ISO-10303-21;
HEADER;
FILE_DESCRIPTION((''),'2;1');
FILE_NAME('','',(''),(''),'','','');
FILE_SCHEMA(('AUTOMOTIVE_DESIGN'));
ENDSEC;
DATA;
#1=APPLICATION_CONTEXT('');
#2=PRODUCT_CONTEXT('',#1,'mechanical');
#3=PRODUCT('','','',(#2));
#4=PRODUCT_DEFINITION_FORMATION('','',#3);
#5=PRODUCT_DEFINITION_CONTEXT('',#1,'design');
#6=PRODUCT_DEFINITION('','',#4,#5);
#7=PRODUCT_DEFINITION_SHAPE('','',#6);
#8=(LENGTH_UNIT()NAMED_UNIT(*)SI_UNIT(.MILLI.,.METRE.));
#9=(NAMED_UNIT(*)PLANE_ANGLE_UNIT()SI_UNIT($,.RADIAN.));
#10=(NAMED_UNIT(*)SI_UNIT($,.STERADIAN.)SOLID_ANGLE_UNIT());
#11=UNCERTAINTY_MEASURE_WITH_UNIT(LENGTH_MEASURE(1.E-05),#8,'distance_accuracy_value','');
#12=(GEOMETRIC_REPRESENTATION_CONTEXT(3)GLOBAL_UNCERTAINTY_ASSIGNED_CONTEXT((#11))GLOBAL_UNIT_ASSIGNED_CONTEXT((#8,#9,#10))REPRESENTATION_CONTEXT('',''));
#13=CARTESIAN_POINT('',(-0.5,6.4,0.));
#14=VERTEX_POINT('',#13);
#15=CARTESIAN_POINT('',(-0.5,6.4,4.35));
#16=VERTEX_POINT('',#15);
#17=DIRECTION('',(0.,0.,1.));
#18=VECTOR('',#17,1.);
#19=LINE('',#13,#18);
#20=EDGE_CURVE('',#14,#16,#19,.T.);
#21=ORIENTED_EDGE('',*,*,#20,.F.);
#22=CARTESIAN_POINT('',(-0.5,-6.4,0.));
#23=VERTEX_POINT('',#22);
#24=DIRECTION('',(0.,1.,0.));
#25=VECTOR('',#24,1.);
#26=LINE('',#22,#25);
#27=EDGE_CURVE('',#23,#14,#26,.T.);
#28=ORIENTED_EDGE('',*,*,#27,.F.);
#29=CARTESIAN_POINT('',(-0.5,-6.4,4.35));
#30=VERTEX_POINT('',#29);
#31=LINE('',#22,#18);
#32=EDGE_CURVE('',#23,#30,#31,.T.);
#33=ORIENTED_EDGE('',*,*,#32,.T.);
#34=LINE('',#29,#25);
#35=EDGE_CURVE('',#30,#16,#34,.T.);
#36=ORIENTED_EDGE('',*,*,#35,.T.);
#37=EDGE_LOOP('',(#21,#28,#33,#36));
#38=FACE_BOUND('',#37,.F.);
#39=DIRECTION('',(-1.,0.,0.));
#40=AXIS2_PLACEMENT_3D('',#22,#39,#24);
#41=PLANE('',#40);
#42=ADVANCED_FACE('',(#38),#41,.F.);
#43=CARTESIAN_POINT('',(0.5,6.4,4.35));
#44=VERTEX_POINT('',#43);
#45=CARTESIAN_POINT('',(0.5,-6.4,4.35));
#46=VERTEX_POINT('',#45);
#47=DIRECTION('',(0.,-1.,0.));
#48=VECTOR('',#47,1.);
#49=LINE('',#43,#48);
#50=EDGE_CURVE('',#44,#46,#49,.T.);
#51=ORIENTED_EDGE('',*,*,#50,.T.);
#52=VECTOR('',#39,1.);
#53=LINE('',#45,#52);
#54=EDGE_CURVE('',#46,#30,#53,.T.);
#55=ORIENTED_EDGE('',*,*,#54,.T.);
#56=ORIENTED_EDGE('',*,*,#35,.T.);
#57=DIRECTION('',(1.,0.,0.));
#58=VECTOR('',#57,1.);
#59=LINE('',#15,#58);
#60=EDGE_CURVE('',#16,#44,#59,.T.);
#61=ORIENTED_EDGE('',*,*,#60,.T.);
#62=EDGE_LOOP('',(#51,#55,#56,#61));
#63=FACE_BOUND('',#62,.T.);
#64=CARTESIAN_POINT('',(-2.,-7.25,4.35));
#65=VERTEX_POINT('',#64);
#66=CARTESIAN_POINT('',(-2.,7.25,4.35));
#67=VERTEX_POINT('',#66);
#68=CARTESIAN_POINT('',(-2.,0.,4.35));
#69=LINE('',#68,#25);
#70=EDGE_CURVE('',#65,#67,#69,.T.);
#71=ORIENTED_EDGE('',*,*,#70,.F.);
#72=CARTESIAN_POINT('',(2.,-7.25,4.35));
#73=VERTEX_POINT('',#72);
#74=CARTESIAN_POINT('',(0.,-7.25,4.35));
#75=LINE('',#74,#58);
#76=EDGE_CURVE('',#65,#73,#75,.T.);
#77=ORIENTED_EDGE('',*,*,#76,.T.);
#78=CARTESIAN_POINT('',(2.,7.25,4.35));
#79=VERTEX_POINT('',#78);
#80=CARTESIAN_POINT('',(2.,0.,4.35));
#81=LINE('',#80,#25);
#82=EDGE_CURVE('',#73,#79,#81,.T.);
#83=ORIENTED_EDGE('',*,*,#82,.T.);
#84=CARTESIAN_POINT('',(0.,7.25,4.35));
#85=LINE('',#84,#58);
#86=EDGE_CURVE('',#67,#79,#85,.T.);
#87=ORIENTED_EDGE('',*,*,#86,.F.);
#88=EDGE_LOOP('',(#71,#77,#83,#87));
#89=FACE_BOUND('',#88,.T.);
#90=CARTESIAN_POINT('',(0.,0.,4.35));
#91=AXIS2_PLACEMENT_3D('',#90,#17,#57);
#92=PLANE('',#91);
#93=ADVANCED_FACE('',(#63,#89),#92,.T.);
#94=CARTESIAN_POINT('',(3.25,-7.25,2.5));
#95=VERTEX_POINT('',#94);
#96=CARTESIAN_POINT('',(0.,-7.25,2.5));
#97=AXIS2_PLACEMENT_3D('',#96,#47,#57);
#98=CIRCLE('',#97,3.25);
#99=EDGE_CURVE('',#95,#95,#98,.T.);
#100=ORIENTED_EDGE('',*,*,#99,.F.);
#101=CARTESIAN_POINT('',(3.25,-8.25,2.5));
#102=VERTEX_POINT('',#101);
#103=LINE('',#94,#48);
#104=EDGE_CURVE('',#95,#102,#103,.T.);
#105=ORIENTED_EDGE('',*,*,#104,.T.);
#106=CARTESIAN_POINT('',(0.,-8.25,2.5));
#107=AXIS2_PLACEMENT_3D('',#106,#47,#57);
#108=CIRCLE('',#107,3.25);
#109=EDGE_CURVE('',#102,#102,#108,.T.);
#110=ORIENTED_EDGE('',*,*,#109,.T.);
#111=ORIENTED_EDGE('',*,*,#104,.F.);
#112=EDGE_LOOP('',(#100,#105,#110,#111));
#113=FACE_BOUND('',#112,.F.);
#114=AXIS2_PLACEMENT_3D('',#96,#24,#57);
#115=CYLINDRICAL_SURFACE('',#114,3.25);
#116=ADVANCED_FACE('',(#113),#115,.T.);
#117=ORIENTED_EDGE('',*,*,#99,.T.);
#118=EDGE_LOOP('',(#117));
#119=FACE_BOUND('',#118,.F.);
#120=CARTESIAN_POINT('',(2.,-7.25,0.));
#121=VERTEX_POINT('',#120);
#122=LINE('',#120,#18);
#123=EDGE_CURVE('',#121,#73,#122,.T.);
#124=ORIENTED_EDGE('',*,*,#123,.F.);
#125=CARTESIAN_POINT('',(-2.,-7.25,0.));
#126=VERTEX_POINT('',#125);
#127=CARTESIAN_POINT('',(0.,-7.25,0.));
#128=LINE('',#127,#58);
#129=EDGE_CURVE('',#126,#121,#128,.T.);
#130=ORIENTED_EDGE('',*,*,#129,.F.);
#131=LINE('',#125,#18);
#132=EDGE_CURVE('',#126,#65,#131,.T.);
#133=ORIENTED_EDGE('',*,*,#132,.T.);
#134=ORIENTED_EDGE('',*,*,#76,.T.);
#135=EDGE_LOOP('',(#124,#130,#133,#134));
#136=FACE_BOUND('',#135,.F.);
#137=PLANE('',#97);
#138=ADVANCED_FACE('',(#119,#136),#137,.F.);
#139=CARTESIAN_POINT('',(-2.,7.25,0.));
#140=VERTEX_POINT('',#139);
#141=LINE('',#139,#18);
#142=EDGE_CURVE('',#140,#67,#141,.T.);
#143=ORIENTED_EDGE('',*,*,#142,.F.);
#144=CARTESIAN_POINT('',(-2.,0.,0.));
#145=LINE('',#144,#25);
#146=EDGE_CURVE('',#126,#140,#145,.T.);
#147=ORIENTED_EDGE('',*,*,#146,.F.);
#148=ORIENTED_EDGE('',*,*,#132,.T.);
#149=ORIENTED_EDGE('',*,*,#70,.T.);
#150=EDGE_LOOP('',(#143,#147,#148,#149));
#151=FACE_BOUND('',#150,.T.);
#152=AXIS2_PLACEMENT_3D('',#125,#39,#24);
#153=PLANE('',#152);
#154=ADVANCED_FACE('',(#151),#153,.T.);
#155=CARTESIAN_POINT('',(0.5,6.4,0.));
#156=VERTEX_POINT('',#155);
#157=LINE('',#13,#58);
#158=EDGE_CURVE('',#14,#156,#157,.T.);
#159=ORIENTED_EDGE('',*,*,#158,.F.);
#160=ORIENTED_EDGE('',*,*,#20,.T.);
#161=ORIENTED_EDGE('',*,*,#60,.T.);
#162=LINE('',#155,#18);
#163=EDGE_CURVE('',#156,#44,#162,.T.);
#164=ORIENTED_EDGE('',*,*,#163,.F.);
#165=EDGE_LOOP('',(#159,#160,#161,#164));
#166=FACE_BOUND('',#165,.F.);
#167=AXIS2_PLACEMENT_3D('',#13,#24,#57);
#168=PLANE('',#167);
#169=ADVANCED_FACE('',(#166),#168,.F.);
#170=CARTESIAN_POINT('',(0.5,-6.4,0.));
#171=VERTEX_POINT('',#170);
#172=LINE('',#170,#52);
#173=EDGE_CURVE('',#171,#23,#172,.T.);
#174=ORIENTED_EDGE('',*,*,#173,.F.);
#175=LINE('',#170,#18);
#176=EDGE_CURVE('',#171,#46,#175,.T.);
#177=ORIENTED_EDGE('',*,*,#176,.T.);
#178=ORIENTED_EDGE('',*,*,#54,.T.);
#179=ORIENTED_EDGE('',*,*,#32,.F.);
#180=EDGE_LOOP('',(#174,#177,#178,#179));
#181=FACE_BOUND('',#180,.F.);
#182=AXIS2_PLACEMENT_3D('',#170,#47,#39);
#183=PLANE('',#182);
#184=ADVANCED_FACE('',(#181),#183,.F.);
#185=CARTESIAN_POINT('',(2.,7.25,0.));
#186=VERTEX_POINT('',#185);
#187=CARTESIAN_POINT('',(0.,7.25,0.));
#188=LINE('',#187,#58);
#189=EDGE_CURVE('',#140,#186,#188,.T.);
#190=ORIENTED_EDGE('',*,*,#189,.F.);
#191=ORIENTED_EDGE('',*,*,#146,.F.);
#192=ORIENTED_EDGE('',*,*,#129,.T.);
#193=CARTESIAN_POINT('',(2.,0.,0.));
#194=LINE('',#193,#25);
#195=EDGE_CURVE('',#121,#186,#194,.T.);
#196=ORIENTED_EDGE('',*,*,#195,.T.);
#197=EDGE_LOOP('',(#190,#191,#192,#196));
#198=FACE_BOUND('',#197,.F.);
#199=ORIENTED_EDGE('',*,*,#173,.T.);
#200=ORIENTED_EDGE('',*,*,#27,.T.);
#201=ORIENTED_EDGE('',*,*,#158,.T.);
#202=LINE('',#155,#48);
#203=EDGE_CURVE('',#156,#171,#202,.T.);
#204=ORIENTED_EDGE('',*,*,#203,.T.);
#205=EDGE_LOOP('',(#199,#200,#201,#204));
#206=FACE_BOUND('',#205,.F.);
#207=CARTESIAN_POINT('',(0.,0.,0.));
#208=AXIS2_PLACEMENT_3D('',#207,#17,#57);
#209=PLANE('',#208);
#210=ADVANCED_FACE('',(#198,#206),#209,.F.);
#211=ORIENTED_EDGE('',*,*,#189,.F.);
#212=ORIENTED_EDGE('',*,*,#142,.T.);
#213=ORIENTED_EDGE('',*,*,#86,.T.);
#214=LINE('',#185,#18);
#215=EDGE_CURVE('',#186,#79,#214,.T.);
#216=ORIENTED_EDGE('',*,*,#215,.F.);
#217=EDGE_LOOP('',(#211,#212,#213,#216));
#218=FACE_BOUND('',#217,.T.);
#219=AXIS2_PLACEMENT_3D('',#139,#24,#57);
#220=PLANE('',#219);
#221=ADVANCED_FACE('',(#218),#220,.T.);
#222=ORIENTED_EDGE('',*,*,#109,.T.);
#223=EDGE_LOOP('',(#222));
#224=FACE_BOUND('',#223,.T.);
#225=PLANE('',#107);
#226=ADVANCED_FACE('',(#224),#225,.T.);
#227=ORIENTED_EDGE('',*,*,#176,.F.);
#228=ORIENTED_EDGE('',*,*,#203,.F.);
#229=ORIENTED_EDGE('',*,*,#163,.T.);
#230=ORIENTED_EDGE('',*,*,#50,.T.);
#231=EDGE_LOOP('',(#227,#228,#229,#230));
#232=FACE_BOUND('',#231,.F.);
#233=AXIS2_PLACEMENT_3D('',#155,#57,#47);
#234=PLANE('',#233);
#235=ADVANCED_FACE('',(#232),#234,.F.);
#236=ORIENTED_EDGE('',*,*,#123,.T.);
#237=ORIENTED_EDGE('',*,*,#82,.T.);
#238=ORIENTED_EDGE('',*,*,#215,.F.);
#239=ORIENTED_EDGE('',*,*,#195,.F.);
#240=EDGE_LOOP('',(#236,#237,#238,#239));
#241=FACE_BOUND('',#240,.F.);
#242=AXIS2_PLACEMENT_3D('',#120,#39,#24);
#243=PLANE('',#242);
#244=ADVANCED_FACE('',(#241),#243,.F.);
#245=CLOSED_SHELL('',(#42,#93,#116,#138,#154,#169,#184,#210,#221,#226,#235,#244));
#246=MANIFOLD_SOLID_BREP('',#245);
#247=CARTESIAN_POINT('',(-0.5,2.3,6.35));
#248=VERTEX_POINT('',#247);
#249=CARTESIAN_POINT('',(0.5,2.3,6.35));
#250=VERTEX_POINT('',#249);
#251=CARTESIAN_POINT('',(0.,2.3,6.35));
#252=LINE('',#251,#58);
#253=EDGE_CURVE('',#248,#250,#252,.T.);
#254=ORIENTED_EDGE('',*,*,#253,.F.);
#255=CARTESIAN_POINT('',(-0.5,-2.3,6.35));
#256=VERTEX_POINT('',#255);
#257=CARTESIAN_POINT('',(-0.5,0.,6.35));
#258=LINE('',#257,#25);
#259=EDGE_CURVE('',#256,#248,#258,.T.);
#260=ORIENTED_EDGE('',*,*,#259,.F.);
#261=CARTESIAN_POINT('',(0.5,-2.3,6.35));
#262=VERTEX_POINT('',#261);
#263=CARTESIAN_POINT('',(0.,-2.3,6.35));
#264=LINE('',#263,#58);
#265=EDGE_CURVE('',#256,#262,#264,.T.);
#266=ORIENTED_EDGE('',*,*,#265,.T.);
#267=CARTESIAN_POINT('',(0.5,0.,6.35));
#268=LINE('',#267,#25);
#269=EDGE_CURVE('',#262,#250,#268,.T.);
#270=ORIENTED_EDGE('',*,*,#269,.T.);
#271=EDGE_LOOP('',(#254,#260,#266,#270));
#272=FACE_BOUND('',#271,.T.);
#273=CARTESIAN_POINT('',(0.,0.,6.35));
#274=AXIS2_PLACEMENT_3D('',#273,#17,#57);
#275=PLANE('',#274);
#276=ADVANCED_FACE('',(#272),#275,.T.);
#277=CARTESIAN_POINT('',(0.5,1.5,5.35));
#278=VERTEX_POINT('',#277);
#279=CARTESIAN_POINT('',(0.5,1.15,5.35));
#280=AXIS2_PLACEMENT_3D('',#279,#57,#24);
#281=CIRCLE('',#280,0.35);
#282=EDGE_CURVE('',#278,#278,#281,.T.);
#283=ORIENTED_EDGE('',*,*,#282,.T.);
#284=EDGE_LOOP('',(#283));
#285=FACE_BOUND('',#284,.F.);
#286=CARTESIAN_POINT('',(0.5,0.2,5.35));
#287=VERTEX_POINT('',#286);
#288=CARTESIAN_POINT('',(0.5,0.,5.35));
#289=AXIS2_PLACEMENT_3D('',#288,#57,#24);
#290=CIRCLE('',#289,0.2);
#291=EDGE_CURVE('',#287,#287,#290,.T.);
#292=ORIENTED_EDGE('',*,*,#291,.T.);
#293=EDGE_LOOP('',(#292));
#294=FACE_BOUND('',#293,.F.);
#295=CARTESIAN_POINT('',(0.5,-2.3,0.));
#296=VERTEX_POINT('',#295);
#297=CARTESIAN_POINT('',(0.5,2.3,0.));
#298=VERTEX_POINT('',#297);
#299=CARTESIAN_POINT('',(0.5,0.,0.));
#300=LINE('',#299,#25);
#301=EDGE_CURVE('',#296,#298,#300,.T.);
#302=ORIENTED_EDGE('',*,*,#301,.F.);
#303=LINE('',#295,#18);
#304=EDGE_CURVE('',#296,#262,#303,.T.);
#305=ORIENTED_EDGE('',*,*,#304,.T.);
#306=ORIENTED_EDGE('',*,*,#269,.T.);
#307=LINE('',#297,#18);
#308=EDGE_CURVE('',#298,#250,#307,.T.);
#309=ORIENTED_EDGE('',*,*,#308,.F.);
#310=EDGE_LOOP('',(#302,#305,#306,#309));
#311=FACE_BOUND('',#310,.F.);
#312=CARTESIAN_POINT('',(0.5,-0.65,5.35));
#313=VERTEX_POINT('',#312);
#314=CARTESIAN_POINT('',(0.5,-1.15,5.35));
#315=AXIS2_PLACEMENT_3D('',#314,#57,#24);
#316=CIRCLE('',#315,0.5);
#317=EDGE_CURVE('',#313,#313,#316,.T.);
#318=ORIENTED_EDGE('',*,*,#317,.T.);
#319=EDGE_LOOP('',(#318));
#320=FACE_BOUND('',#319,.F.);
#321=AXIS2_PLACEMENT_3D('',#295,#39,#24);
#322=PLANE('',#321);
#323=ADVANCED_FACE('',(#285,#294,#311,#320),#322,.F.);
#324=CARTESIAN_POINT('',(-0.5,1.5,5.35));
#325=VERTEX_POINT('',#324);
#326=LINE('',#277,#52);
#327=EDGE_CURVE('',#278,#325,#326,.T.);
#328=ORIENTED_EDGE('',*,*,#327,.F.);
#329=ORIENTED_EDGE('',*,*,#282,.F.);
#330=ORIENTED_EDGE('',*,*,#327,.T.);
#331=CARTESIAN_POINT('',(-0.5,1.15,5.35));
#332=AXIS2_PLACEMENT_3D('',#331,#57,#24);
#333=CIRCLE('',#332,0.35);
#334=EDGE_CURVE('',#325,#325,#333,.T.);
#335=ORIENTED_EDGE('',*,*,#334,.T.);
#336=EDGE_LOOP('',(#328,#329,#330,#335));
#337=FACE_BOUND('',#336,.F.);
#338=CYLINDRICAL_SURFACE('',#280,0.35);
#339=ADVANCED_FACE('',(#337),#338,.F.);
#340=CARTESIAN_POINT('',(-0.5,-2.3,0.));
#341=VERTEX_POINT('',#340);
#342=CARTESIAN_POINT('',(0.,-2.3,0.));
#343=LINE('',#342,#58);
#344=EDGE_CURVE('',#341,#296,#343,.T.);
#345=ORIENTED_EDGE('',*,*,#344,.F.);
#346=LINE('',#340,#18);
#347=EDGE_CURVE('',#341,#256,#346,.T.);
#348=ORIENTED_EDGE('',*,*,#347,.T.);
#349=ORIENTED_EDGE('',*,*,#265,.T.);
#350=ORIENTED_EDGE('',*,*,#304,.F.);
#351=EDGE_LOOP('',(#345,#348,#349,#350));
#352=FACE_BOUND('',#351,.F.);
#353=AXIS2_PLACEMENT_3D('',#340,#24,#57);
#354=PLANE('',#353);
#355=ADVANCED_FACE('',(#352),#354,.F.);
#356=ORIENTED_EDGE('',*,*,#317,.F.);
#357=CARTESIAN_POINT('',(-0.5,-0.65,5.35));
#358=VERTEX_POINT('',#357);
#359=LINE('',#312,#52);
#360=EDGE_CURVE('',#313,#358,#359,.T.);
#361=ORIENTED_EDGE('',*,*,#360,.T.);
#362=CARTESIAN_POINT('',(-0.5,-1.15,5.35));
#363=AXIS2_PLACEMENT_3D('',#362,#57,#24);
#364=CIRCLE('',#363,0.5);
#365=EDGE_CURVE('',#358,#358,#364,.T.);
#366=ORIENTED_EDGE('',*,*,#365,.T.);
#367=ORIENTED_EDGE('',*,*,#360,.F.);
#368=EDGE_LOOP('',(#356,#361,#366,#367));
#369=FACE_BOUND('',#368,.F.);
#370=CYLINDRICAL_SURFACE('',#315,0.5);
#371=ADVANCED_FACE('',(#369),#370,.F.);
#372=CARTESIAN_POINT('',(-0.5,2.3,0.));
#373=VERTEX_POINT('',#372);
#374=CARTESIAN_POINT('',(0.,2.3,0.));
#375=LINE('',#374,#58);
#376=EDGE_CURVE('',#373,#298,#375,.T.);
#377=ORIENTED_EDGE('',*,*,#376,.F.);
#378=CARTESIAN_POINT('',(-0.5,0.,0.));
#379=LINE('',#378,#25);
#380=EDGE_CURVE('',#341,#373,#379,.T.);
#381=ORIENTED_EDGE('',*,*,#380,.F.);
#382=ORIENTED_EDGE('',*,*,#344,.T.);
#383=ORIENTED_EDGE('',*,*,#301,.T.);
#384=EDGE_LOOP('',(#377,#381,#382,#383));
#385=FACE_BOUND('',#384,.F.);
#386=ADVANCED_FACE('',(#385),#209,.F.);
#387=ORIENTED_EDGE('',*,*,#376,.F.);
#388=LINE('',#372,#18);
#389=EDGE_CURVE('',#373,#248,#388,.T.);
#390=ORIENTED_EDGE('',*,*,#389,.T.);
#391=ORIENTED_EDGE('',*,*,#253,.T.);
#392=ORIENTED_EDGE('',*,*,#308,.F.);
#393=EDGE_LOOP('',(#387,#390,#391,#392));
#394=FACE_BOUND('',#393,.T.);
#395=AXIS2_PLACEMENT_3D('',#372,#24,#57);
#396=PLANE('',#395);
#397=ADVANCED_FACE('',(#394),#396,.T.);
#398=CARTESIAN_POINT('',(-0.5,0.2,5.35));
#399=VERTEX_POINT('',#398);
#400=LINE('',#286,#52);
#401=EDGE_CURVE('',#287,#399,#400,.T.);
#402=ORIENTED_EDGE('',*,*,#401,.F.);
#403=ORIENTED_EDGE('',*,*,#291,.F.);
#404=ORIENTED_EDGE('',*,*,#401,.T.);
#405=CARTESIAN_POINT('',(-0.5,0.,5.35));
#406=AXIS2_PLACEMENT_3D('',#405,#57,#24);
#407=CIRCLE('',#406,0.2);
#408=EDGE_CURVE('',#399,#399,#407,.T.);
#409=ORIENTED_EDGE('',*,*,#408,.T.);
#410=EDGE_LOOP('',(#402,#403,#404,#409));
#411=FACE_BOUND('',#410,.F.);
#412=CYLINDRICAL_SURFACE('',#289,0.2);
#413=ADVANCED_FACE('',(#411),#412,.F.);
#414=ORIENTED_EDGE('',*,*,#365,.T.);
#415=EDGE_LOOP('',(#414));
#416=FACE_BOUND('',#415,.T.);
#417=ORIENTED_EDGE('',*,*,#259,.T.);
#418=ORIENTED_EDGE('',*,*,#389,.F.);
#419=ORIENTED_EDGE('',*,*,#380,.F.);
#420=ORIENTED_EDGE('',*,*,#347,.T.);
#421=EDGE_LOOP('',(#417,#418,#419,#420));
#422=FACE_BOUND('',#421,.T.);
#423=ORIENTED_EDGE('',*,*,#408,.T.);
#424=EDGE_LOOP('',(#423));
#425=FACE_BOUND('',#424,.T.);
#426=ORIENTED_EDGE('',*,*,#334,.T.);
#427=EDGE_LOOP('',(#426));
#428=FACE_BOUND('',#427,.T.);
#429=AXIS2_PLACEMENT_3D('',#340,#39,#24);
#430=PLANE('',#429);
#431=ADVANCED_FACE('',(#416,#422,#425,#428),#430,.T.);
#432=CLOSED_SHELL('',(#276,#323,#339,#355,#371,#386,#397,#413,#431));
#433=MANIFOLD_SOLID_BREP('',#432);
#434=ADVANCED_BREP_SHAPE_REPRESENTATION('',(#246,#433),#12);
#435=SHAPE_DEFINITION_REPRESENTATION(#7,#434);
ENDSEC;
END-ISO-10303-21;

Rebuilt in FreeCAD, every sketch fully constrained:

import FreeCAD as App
import Part
import Sketcher

V = App.Vector


def add_polygon(sketch, points):
    """Adds a closed chain of lines whose ends are joined by coincident constraints."""
    first, n = sketch.GeometryCount, len(points)
    for a, b in zip(points, points[1:] + points[:1]):
        sketch.addGeometry(Part.LineSegment(App.Vector(*a, 0), App.Vector(*b, 0)), False)
    for i in range(n):
        sketch.addConstraint(Sketcher.Constraint("Coincident", first + i, 2, first + (i + 1) % n, 1))

doc = App.newDocument("Part")
body = doc.addObject("PartDesign::Body", "Body")

# Sketch on XY plane
sketch1 = body.newObject("Sketcher::SketchObject", "Sketch")
sketch1.AttachmentSupport = (doc.getObject("XY_Plane"), [""])
sketch1.MapMode = "FlatFace"
add_polygon(sketch1, [(-2, 7.25), (-2, -7.25), (2, -7.25), (2, 7.25)])  # lines 0-3
add_polygon(sketch1, [(-0.5, -6.4), (-0.5, 6.4), (0.5, 6.4), (0.5, -6.4)])  # lines 4-7
sketch1.addConstraint([
    Sketcher.Constraint("Vertical", 0),
    Sketcher.Constraint("Horizontal", 1),
    Sketcher.Constraint("Vertical", 2),
    Sketcher.Constraint("Horizontal", 3),
    Sketcher.Constraint("Vertical", 4),
    Sketcher.Constraint("Horizontal", 5),
    Sketcher.Constraint("Vertical", 6),
    Sketcher.Constraint("Horizontal", 7),
    Sketcher.Constraint("Symmetric", 0, 2, 2, 2, -1, 1),
    Sketcher.Constraint("Symmetric", 4, 2, 6, 2, -1, 1),
    Sketcher.Constraint("DistanceX", 1, 1, 1, 2, 4.0),
    Sketcher.Constraint("DistanceX", 5, 1, 5, 2, 1.0),
    Sketcher.Constraint("DistanceY", 0, 2, 0, 1, 14.5),
    Sketcher.Constraint("DistanceY", 4, 1, 4, 2, 12.8),
])
pad1 = body.newObject("PartDesign::Pad", "Pad")
pad1.Profile = sketch1
pad1.Length = 4.35

# Sketch on XZ plane
sketch2 = body.newObject("Sketcher::SketchObject", "Sketch001")
sketch2.AttachmentSupport = (doc.getObject("XZ_Plane"), [""])
sketch2.MapMode = "FlatFace"
sketch2.AttachmentOffset = App.Placement(V(0, 0, 7.25), App.Rotation())
sketch2.addGeometry(Part.Circle(V(0, 2.5, 0), V(0, 0, 1), 3.25), False)
sketch2.addConstraint([
    Sketcher.Constraint("PointOnObject", 0, 3, -2),
    Sketcher.Constraint("Diameter", 0, 6.5),
    Sketcher.Constraint("DistanceY", -1, 1, 0, 3, 2.5),
])
pad2 = body.newObject("PartDesign::Pad", "Pad001")
pad2.Profile = sketch2
pad2.Length = 1
body2 = doc.addObject("PartDesign::Body", "Body001")

# Sketch on XY plane
sketch3 = body2.newObject("Sketcher::SketchObject", "Sketch002")
sketch3.AttachmentSupport = (doc.getObject("XY_Plane001"), [""])
sketch3.MapMode = "FlatFace"
add_polygon(sketch3, [(-0.5, 2.3), (-0.5, -2.3), (0.5, -2.3), (0.5, 2.3)])  # lines 0-3
sketch3.addConstraint([
    Sketcher.Constraint("Vertical", 0),
    Sketcher.Constraint("Horizontal", 1),
    Sketcher.Constraint("Vertical", 2),
    Sketcher.Constraint("Horizontal", 3),
    Sketcher.Constraint("Symmetric", 0, 2, 2, 2, -1, 1),
    Sketcher.Constraint("DistanceX", 1, 1, 1, 2, 1.0),
    Sketcher.Constraint("DistanceY", 0, 2, 0, 1, 4.6),
])
pad3 = body2.newObject("PartDesign::Pad", "Pad002")
pad3.Profile = sketch3
pad3.Length = 6.35

# Sketch on YZ plane
sketch4 = body2.newObject("Sketcher::SketchObject", "Sketch003")
sketch4.AttachmentSupport = (doc.getObject("YZ_Plane001"), [""])
sketch4.MapMode = "FlatFace"
sketch4.AttachmentOffset = App.Placement(V(0, 0, 0.5), App.Rotation())
sketch4.addGeometry([
    Part.Circle(V(-1.15, 5.35, 0), V(0, 0, 1), 0.5),
    Part.Circle(V(0, 5.35, 0), V(0, 0, 1), 0.2),
    Part.Circle(V(1.15, 5.35, 0), V(0, 0, 1), 0.35),
], False)
sketch4.addConstraint([
    Sketcher.Constraint("Symmetric", 0, 3, 2, 3, -2),
    Sketcher.Constraint("PointOnObject", 1, 3, -2),
    Sketcher.Constraint("Horizontal", 0, 3, 1, 3),
    Sketcher.Constraint("Diameter", 0, 1.0),
    Sketcher.Constraint("Diameter", 1, 0.4),
    Sketcher.Constraint("Diameter", 2, 0.7),
    Sketcher.Constraint("DistanceX", 0, 3, 2, 3, 2.3),
    Sketcher.Constraint("DistanceY", -1, 1, 0, 3, 5.35),
])
pocket1 = body2.newObject("PartDesign::Pocket", "Pocket")
pocket1.Profile = sketch4
pocket1.Type = "ThroughAll"

doc.recompute()
